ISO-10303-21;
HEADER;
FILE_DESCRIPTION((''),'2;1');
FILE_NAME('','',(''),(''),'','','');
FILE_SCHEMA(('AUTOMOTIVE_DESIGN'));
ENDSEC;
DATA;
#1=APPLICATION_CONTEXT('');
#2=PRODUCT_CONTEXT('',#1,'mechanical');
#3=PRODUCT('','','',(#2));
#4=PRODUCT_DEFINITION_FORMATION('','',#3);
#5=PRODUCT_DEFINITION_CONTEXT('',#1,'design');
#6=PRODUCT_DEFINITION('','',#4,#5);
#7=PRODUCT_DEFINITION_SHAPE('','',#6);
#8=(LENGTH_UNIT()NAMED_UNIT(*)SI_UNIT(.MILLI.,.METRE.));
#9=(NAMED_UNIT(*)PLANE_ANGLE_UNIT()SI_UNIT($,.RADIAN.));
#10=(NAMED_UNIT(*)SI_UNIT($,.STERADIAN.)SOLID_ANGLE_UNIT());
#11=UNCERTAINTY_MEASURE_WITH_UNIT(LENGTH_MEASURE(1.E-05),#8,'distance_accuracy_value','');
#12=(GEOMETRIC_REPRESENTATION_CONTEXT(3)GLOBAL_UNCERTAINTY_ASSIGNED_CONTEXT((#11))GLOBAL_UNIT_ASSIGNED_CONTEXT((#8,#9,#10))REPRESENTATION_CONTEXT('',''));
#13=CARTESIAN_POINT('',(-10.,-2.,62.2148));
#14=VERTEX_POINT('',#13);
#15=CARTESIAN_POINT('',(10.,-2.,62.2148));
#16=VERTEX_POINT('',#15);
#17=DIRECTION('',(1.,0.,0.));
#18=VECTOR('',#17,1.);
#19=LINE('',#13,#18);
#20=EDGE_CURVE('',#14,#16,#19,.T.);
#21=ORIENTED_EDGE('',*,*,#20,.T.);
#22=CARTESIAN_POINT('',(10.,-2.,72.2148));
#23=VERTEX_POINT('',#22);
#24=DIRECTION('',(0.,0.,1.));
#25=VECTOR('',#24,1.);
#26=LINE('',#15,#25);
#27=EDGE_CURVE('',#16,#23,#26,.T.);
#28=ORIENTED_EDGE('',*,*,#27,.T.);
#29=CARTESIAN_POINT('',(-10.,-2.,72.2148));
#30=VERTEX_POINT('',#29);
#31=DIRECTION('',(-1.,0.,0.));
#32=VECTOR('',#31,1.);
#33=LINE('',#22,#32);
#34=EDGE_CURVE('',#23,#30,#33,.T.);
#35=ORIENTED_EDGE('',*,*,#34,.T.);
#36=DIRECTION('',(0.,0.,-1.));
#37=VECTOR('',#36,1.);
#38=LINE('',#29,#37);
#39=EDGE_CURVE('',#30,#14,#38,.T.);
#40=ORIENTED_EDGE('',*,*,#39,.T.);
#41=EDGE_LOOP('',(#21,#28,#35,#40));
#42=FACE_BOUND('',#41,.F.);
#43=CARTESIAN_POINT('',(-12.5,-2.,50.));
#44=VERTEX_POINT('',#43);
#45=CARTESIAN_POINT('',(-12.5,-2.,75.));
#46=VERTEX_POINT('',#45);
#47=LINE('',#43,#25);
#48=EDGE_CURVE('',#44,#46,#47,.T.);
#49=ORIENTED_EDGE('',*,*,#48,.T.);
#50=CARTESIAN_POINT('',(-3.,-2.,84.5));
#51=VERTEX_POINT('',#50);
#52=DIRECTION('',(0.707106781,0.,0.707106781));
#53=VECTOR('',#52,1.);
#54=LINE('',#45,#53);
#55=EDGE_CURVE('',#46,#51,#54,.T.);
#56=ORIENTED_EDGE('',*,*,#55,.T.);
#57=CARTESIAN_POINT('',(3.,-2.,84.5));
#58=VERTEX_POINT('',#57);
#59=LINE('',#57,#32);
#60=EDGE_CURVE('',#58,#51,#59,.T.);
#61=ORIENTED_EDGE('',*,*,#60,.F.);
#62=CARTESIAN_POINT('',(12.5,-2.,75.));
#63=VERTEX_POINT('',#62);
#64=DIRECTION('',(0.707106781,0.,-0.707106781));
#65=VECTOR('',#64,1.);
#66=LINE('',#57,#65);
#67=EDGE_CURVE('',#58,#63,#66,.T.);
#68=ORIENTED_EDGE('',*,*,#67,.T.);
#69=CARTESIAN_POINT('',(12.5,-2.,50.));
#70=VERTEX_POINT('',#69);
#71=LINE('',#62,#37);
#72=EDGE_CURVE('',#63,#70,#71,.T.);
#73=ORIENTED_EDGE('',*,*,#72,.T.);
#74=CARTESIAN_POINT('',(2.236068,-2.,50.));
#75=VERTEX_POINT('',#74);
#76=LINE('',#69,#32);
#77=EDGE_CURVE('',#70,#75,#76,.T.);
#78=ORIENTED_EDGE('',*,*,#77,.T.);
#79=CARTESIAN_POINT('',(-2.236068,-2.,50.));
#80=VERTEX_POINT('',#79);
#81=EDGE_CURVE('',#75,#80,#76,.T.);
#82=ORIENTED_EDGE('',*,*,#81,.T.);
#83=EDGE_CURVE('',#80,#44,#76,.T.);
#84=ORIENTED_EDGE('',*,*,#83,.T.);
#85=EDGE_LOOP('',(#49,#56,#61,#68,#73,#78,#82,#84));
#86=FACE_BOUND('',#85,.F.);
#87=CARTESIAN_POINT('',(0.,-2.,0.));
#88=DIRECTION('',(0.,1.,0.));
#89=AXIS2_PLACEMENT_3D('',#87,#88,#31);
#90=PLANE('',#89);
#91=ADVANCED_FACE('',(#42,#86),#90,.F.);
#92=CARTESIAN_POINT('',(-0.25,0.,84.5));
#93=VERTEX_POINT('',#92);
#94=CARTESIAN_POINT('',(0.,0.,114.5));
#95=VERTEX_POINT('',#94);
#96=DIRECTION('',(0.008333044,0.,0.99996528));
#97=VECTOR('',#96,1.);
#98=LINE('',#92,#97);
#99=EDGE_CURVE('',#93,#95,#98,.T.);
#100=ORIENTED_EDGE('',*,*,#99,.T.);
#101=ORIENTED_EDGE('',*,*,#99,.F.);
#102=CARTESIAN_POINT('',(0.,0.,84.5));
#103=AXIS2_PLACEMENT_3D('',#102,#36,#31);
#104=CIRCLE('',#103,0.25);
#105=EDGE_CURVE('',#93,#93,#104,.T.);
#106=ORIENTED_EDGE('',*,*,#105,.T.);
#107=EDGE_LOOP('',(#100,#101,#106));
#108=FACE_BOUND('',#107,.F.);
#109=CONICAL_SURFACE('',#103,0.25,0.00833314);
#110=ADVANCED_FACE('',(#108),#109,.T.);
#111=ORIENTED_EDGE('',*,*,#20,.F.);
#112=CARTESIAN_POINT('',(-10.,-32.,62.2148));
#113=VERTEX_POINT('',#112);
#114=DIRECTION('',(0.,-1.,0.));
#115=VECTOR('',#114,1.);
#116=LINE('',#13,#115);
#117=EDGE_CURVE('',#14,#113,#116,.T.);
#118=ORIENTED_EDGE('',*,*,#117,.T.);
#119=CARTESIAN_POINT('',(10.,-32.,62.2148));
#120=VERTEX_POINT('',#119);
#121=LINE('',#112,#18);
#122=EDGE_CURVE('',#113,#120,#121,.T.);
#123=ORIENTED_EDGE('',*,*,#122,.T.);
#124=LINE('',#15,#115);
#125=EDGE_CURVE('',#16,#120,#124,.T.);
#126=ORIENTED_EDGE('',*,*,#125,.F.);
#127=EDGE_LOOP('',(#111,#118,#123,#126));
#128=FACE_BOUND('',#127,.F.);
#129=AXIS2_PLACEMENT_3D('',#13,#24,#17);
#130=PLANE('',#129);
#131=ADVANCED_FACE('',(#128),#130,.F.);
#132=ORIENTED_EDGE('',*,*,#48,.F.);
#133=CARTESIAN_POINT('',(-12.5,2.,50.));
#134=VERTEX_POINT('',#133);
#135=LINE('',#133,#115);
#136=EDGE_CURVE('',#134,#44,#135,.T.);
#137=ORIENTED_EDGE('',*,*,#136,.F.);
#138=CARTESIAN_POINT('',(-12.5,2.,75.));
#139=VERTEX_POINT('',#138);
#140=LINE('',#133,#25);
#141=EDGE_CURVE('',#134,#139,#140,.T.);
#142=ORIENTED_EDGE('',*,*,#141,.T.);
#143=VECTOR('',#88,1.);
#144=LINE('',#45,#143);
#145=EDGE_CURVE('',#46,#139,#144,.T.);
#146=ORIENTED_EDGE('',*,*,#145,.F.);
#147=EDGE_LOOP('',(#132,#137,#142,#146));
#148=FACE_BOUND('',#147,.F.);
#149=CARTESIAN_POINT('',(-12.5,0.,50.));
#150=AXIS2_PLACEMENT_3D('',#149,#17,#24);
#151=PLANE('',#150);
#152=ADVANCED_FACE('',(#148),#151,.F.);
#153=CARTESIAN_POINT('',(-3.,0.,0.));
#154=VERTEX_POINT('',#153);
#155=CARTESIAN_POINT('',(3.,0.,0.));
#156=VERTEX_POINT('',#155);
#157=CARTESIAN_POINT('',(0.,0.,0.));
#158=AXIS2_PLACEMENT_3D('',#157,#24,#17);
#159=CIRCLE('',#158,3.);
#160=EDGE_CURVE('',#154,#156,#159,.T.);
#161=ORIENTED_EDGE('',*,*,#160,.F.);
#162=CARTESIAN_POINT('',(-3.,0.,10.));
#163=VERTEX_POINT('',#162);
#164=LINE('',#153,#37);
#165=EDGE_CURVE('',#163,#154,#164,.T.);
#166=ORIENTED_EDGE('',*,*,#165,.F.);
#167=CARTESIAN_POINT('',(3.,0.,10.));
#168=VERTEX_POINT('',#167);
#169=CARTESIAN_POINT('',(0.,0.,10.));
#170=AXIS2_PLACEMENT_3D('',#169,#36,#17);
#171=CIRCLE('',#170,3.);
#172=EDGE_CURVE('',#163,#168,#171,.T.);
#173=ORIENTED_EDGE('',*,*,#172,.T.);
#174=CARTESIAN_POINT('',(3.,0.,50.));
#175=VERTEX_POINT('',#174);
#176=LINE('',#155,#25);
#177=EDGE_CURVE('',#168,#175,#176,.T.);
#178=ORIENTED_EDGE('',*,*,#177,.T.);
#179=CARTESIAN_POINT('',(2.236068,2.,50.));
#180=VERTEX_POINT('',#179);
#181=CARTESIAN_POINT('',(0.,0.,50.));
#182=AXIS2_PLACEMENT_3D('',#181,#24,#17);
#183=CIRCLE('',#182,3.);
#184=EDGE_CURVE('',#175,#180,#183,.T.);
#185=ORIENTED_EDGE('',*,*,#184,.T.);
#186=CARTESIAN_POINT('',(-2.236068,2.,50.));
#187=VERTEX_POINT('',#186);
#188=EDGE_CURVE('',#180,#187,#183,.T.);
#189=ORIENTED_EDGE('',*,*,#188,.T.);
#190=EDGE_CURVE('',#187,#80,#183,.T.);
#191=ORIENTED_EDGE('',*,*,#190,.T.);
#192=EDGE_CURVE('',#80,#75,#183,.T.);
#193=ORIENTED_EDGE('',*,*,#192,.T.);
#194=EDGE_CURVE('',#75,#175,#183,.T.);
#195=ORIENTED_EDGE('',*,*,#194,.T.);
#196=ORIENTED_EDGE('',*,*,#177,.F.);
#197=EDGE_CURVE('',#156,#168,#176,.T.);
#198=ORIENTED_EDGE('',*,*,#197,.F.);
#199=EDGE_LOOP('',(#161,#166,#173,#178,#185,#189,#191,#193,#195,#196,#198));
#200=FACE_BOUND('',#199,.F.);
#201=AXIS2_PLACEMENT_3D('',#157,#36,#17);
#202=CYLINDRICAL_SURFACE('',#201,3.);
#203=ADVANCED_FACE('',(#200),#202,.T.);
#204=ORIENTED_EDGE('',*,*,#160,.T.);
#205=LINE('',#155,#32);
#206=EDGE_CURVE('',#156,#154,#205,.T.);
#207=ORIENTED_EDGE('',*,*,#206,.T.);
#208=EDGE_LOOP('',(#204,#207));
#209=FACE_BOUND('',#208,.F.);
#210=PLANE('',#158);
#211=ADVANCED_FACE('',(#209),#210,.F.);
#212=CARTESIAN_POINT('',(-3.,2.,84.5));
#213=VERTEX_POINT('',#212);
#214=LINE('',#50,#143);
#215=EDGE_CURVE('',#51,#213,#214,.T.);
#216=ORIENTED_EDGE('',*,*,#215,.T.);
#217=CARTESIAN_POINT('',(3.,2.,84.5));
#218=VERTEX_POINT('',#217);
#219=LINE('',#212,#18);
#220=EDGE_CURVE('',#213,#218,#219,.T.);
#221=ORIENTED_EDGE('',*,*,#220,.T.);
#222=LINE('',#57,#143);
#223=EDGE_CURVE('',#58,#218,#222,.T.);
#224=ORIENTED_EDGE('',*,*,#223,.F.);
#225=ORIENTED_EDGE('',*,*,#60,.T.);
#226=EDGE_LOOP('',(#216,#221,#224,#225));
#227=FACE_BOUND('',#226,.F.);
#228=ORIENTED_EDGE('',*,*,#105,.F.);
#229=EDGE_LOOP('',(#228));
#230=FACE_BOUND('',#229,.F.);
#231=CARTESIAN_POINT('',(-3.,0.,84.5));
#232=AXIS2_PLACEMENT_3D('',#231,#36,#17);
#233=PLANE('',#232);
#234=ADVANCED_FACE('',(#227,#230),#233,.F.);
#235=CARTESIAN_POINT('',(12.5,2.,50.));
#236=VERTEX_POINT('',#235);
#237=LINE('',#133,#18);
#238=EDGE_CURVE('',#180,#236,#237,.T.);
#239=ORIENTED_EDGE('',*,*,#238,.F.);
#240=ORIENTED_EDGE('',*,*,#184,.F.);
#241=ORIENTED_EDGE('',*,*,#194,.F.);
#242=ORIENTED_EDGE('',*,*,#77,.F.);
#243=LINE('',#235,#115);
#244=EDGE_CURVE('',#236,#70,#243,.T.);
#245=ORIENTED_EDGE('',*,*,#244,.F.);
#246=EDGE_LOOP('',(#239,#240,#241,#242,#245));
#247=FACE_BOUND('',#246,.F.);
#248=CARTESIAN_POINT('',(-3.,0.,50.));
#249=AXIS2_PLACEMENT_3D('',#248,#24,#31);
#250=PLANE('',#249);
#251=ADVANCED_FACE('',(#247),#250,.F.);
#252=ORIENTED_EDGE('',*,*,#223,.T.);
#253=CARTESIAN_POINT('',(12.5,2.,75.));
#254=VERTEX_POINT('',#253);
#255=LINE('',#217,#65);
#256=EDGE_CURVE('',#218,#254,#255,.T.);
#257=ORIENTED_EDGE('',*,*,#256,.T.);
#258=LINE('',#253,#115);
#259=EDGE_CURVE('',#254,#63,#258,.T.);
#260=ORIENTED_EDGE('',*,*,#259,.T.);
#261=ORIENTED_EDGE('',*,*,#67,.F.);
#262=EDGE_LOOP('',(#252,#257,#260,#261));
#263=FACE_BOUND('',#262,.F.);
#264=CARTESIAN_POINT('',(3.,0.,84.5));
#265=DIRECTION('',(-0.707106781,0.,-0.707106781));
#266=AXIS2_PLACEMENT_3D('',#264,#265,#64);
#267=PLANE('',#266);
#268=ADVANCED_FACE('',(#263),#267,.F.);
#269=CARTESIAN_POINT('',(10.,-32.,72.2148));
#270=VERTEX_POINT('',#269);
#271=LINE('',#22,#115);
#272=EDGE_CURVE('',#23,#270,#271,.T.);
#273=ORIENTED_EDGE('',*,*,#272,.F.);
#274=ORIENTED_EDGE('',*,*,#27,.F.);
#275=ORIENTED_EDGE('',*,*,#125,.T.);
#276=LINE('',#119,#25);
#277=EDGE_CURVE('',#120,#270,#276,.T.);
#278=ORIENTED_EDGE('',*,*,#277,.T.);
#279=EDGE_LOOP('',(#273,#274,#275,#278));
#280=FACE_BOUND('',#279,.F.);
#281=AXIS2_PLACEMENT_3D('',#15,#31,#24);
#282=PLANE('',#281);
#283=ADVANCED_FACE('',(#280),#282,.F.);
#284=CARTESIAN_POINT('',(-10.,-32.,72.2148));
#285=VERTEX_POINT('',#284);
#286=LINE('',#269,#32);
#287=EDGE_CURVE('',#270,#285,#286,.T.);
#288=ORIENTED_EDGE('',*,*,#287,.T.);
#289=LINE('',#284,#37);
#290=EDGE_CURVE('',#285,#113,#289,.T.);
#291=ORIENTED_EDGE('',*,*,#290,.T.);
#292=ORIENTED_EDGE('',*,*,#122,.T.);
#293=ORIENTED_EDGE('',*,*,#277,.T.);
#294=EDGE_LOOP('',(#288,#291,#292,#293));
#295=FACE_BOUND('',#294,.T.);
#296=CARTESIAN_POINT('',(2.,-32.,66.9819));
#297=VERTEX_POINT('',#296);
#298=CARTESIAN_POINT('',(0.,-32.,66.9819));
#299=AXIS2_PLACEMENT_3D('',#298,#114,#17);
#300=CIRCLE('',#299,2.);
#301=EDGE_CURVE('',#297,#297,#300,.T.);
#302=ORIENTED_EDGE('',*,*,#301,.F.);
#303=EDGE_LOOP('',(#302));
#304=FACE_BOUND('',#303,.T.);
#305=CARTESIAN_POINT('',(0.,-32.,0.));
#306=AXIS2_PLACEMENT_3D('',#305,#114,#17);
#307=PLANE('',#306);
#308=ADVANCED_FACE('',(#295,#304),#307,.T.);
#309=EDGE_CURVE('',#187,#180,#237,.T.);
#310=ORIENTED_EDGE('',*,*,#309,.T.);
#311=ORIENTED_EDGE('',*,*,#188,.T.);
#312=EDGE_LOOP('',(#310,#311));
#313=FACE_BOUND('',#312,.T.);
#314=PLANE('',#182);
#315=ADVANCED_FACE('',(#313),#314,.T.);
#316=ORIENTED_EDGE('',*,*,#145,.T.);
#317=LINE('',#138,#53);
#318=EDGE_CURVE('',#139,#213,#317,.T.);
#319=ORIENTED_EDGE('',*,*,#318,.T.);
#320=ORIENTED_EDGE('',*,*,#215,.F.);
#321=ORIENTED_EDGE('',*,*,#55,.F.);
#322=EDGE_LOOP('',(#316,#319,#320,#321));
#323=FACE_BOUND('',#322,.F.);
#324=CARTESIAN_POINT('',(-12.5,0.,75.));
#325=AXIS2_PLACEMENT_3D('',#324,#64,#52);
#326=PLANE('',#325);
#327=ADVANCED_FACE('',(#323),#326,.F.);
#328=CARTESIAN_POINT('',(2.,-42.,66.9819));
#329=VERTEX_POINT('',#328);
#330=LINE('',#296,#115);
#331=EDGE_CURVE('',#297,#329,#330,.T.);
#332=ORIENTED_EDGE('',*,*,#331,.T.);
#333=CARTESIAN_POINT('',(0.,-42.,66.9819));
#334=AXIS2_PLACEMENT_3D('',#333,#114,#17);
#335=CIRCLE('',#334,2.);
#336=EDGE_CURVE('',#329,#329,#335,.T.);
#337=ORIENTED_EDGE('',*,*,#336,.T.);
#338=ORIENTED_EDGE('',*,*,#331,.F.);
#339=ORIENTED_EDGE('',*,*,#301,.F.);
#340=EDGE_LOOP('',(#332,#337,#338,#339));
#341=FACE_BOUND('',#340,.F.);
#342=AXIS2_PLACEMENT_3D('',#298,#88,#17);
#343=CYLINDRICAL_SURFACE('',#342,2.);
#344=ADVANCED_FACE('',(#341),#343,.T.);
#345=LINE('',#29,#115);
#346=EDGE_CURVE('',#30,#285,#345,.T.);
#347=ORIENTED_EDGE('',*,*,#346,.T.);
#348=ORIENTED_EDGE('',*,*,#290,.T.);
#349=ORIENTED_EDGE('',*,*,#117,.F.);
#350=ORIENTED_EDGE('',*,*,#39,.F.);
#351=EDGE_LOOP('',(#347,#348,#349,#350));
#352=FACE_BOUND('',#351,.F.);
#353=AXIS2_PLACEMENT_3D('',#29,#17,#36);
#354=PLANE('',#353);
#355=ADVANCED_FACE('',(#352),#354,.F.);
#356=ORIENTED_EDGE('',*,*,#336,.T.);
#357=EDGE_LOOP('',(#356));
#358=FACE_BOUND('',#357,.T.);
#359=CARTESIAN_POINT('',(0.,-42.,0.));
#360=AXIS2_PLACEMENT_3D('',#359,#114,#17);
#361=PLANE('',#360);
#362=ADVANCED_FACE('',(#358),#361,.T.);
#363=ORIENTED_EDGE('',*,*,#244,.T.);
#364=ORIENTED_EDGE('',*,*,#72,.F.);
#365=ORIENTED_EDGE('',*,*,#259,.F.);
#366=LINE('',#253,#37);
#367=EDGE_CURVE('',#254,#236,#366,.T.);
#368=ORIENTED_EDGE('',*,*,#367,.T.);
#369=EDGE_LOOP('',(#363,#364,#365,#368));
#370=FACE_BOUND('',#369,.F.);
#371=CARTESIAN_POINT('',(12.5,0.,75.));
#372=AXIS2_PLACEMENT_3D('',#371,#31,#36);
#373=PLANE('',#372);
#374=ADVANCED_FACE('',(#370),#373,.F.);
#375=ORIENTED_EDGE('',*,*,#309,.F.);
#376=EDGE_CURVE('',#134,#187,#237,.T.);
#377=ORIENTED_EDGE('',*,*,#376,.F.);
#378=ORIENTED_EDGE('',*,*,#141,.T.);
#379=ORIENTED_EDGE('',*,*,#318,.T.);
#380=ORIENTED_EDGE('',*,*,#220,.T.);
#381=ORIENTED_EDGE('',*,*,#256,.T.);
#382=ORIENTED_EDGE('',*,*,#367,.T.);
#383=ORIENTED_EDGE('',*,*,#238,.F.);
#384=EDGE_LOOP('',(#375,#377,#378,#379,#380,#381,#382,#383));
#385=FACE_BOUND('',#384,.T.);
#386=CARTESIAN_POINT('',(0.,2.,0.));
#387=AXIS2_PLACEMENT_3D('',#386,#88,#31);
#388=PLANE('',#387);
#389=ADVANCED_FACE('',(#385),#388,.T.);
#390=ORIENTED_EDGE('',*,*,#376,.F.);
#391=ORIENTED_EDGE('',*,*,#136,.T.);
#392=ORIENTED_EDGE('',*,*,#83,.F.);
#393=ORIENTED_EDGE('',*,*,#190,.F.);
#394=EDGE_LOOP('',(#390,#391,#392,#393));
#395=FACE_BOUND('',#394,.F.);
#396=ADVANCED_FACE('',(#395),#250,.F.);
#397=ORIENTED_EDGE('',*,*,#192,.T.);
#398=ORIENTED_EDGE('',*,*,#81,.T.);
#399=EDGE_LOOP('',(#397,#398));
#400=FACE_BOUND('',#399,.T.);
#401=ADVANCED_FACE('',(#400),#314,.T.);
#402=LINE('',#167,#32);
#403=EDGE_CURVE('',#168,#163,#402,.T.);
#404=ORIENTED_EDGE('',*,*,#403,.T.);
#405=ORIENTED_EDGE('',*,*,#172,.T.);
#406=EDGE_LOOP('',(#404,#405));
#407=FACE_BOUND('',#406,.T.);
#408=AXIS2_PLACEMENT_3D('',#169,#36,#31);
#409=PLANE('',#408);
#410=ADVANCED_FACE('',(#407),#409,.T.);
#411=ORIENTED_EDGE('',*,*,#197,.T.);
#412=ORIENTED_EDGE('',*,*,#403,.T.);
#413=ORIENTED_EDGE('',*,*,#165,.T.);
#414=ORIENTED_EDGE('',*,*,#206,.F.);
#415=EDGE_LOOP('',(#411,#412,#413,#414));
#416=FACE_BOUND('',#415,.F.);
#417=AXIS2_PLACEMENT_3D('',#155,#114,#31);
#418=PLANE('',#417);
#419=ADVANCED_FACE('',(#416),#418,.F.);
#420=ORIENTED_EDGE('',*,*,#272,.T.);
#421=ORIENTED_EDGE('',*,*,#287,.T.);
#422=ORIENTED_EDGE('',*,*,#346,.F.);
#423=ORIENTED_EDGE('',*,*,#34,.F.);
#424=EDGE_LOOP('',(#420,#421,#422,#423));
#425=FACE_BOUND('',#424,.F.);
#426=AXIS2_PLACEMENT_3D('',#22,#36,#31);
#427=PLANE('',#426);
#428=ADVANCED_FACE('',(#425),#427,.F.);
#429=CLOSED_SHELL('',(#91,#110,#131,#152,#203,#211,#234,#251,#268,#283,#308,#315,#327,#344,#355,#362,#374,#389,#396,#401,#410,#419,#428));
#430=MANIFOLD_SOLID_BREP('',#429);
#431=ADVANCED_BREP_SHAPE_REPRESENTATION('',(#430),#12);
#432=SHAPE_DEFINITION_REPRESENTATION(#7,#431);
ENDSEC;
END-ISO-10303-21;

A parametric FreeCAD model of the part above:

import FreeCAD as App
import Part
import Sketcher

V = App.Vector

doc = App.newDocument("Part")
body = doc.addObject("PartDesign::Body", "Body")

# Sketch on XY plane
sketch1 = body.newObject("Sketcher::SketchObject", "Sketch")
sketch1.AttachmentSupport = (doc.getObject("XY_Plane"), [""])
sketch1.MapMode = "FlatFace"
sketch1.addGeometry(Part.Circle(V(0, 0, 0), V(0, 0, 1), 3), False)
sketch1.addConstraint([
    Sketcher.Constraint("Coincident", 0, 3, -1, 1),
    Sketcher.Constraint("Diameter", 0, 6.0),
])
pad1 = body.newObject("PartDesign::Pad", "Pad")
pad1.Profile = sketch1
pad1.Length = 50

# Sketch on XZ plane
sketch2 = body.newObject("Sketcher::SketchObject", "Sketch001")
sketch2.AttachmentSupport = (doc.getObject("XZ_Plane"), [""])
sketch2.MapMode = "FlatFace"
sketch2.addGeometry([
    Part.LineSegment(V(-12, 50, 0), V(-12, 75, 0)),  # 0
    Part.LineSegment(V(-12, 75, 0), V(-3, 84, 0)),  # 1
    Part.LineSegment(V(-3, 84, 0), V(3, 84, 0)),  # 2
    Part.LineSegment(V(3, 84, 0), V(12, 75, 0)),  # 3
    Part.LineSegment(V(12, 75, 0), V(12, 50, 0)),  # 4
    Part.LineSegment(V(12, 50, 0), V(-12, 50, 0)),  # 5
], False)
sketch2.addConstraint([
    Sketcher.Constraint("Coincident", 0, 2, 1, 1),
    Sketcher.Constraint("Coincident", 1, 2, 2, 1),
    Sketcher.Constraint("Coincident", 2, 2, 3, 1),
    Sketcher.Constraint("Coincident", 3, 2, 4, 1),
    Sketcher.Constraint("Coincident", 4, 2, 5, 1),
    Sketcher.Constraint("Coincident", 5, 2, 0, 1),
    Sketcher.Constraint("Vertical", 0),
    Sketcher.Constraint("Horizontal", 2),
    Sketcher.Constraint("Vertical", 4),
    Sketcher.Constraint("Horizontal", 5),
    Sketcher.Constraint("Symmetric", 0, 2, 3, 2, -2),
    Sketcher.Constraint("Perpendicular", 1, 3),
    Sketcher.Constraint("Equal", 5, 0),
    Sketcher.Constraint("Equal", 1, 3),
    Sketcher.Constraint("DistanceX", 2, 1, 2, 2, 6.0),
    Sketcher.Constraint("DistanceX", 5, 2, 5, 1, 25.0),
    Sketcher.Constraint("DistanceY", -1, 1, 0, 2, 75.0),
])
pad2 = body.newObject("PartDesign::Pad", "Pad001")
pad2.Profile = sketch2
pad2.Length = 4
pad2.Midplane = True

# Sketch on XZ plane
sketch3 = body.newObject("Sketcher::SketchObject", "Sketch002")
sketch3.AttachmentSupport = (doc.getObject("XZ_Plane"), [""])
sketch3.MapMode = "FlatFace"
sketch3.AttachmentOffset = App.Placement(V(0, 0, 2), App.Rotation())
sketch3.addGeometry([
    Part.LineSegment(V(10, 72, 0), V(-10, 72, 0)),
    Part.LineSegment(V(-10, 72, 0), V(-10, 62, 0)),
    Part.LineSegment(V(-10, 62, 0), V(10, 62, 0)),
    Part.LineSegment(V(10, 62, 0), V(10, 72, 0)),
], False)
sketch3.addConstraint([
    Sketcher.Constraint("Coincident", 0, 2, 1, 1),
    Sketcher.Constraint("Coincident", 1, 2, 2, 1),
    Sketcher.Constraint("Coincident", 2, 2, 3, 1),
    Sketcher.Constraint("Coincident", 3, 2, 0, 1),
    Sketcher.Constraint("Horizontal", 0),
    Sketcher.Constraint("Vertical", 1),
    Sketcher.Constraint("Horizontal", 2),
    Sketcher.Constraint("Vertical", 3),
    Sketcher.Constraint("DistanceX", 0, 2, 0, 1, 20.0),
    Sketcher.Constraint("DistanceY", 1, 2, 1, 1, 10.0),
    Sketcher.Constraint("DistanceX", 0, 2, -1, 1, 10.0),
    Sketcher.Constraint("DistanceY", -1, 1, 0, 2, 72.2148),
])
pad3 = body.newObject("PartDesign::Pad", "Pad002")
pad3.Profile = sketch3
pad3.Length = 30

# Sketch on XZ plane
sketch4 = body.newObject("Sketcher::SketchObject", "Sketch003")
sketch4.AttachmentSupport = (doc.getObject("XZ_Plane"), [""])
sketch4.MapMode = "FlatFace"
sketch4.addGeometry([
    Part.LineSegment(V(0, 84.5, 0), V(-0.25, 84.5, 0)),
    Part.LineSegment(V(-0.25, 84.5, 0), V(0, 114.5, 0)),
    Part.LineSegment(V(0, 114.5, 0), V(0, 84.5, 0)),
], False)
sketch4.addConstraint([
    Sketcher.Constraint("Coincident", 0, 2, 1, 1),
    Sketcher.Constraint("Coincident", 1, 2, 2, 1),
    Sketcher.Constraint("Coincident", 2, 2, 0, 1),
    Sketcher.Constraint("Horizontal", 0),
    Sketcher.Constraint("Vertical", 2),
    Sketcher.Constraint("PointOnObject", 1, 2, -2),
    Sketcher.Constraint("DistanceY", 2, 2, 2, 1, 30.0),
    Sketcher.Constraint("DistanceX", 0, 2, 0, 1, 0.25),
    Sketcher.Constraint("DistanceY", -1, 1, 0, 2, 84.5),
])
revolution = body.newObject("PartDesign::Revolution", "Revolution")
revolution.Profile = sketch4
revolution.ReferenceAxis = (sketch4, ["V_Axis"])
revolution.Angle = 360

# Sketch on XY plane
sketch5 = body.newObject("Sketcher::SketchObject", "Sketch004")
sketch5.AttachmentSupport = (doc.getObject("XY_Plane"), [""])
sketch5.MapMode = "FlatFace"
sketch5.addGeometry([
    Part.LineSegment(V(3, 5, 0), V(3, 0, 0)),
    Part.LineSegment(V(3, 0, 0), V(-4, 0, 0)),
    Part.LineSegment(V(-4, 0, 0), V(-4, 5, 0)),
    Part.LineSegment(V(-4, 5, 0), V(3, 5, 0)),
], False)
sketch5.addConstraint([
    Sketcher.Constraint("Coincident", 0, 2, 1, 1),
    Sketcher.Constraint("Coincident", 1, 2, 2, 1),
    Sketcher.Constraint("Coincident", 2, 2, 3, 1),
    Sketcher.Constraint("Coincident", 3, 2, 0, 1),
    Sketcher.Constraint("Vertical", 0),
    Sketcher.Constraint("Horizontal", 1),
    Sketcher.Constraint("Vertical", 2),
    Sketcher.Constraint("Horizontal", 3),
    Sketcher.Constraint("PointOnObject", 0, 2, -1),
    Sketcher.Constraint("DistanceX", -1, 1, 0, 2, 3.0),
    Sketcher.Constraint("DistanceX", 1, 2, 1, 1, 6.9396),
    Sketcher.Constraint("DistanceY", 0, 2, 0, 1, 5.4672),
])
pocket1 = body.newObject("PartDesign::Pocket", "Pocket")
pocket1.Profile = sketch5
pocket1.Length = 10
pocket1.Reversed = True

# Sketch on XZ plane
sketch6 = body.newObject("Sketcher::SketchObject", "Sketch005")
sketch6.AttachmentSupport = (doc.getObject("XZ_Plane"), [""])
sketch6.MapMode = "FlatFace"
sketch6.AttachmentOffset = App.Placement(V(0, 0, 32), App.Rotation())
sketch6.addGeometry(Part.Circle(V(0, 67, 0), V(0, 0, 1), 2), False)
sketch6.addConstraint([
    Sketcher.Constraint("PointOnObject", 0, 3, -2),
    Sketcher.Constraint("Diameter", 0, 4.0),
    Sketcher.Constraint("DistanceY", -1, 1, 0, 3, 66.982),
])
pad4 = body.newObject("PartDesign::Pad", "Pad003")
pad4.Profile = sketch6
pad4.Length = 10

doc.recompute()
